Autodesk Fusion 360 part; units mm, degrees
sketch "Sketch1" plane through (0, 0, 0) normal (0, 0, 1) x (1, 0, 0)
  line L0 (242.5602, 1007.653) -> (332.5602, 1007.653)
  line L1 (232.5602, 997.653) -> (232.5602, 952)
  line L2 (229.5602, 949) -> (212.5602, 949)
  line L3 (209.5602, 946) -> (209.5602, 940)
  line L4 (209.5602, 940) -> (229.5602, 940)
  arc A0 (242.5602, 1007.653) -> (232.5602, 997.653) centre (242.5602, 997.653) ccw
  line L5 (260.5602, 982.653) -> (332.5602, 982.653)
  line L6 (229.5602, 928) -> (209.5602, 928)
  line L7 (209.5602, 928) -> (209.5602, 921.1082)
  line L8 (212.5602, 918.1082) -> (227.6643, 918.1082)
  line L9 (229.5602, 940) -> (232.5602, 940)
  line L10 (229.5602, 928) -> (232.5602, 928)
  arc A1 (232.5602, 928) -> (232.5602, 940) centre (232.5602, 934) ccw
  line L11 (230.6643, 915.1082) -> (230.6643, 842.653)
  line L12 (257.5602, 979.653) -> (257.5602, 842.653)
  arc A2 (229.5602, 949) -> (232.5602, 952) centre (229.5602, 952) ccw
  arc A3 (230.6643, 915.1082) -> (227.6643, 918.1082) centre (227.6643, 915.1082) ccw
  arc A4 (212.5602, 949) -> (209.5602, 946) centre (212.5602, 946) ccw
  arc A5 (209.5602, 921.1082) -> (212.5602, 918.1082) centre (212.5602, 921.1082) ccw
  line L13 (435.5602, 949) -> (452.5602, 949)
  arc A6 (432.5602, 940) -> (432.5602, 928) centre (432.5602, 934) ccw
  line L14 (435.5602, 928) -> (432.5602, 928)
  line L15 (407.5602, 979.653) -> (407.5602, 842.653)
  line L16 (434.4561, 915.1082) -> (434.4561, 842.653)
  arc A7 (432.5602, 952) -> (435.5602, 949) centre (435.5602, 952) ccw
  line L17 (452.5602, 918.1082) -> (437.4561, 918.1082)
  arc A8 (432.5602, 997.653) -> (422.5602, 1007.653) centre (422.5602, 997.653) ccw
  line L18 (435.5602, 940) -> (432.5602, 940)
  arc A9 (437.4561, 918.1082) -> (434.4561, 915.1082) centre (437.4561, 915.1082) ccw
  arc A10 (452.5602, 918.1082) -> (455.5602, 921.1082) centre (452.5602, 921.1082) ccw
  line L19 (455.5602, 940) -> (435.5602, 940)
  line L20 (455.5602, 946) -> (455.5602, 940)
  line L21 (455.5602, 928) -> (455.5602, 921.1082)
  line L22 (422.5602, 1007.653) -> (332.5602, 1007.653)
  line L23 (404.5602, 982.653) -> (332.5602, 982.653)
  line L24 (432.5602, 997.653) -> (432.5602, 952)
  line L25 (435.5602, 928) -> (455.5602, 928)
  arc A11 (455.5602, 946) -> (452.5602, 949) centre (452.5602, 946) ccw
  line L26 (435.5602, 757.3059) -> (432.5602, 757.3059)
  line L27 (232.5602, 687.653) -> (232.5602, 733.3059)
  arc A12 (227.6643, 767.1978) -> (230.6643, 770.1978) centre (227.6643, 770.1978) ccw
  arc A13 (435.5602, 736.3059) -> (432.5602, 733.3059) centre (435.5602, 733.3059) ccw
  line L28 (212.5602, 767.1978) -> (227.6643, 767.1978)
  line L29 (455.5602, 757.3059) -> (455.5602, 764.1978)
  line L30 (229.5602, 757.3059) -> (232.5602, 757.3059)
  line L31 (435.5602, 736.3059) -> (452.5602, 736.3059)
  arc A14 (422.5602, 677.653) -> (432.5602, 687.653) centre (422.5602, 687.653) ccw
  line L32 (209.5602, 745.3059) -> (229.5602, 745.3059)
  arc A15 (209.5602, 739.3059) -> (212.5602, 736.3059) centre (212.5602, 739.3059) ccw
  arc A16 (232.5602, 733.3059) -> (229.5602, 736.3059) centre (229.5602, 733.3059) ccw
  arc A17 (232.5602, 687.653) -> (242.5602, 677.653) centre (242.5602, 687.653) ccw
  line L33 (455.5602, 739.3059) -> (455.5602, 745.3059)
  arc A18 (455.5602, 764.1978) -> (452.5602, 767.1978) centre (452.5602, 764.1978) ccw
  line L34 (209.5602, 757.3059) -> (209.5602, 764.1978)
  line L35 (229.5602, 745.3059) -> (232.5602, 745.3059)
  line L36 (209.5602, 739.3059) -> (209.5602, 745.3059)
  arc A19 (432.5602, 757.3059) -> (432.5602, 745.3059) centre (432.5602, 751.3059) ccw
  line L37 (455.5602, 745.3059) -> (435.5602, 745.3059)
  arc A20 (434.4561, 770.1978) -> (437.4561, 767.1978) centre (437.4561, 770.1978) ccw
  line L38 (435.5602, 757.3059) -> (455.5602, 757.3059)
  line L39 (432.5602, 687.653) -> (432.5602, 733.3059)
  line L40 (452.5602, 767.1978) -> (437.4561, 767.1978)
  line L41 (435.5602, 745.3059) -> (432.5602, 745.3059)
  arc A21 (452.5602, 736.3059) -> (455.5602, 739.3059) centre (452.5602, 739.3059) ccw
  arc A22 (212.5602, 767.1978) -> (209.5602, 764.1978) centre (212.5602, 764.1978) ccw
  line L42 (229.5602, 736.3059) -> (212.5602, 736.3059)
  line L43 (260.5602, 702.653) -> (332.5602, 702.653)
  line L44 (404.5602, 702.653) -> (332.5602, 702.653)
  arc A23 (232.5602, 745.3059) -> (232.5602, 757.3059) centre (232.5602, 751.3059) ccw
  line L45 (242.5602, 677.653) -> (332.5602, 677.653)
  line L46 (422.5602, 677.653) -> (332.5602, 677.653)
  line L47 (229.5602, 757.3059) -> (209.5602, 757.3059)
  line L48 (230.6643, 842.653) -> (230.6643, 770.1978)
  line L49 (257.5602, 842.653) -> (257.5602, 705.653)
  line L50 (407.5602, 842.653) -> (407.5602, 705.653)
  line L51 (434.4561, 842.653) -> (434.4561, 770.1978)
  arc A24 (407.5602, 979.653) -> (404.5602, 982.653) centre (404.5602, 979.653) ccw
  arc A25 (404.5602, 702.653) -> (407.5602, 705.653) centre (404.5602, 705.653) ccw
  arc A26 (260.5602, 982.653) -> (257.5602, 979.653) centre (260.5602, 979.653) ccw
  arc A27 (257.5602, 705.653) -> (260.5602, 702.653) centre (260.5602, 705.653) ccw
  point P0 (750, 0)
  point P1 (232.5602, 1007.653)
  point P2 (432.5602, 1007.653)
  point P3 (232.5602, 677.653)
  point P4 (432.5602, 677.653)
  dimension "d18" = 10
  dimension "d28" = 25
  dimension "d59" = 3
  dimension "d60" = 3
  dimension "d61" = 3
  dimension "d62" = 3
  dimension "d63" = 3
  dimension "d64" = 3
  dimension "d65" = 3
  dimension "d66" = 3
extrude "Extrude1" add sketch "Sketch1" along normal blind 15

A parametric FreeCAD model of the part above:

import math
import FreeCAD as App
import Part
import Sketcher

doc = App.newDocument("Part")
body = doc.addObject("PartDesign::Body", "Body")

sketch1 = body.newObject("Sketcher::SketchObject", "Sketch")
sketch1.AttachmentSupport = (doc.getObject("XY_Plane"), [""])
sketch1.MapMode = "FlatFace"
sketch1.addGeometry(Part.LineSegment(App.Vector(422.6, 1007.7, 0), App.Vector(242.6, 1007.7, 0)), False)
sketch1.addGeometry(Part.ArcOfCircle(Part.Circle(App.Vector(242.6, 997.7, 0), App.Vector(0, 0, 1), 10), math.radians(90), math.radians(180)), False)
sketch1.addGeometry(Part.LineSegment(App.Vector(232.6, 997.7, 0), App.Vector(232.6, 952, 0)), False)
sketch1.addGeometry(Part.ArcOfCircle(Part.Circle(App.Vector(229.6, 952, 0), App.Vector(0, 0, 1), 3), math.radians(-90), math.radians(0)), False)
sketch1.addGeometry(Part.LineSegment(App.Vector(229.6, 949, 0), App.Vector(212.6, 949, 0)), False)
sketch1.addGeometry(Part.ArcOfCircle(Part.Circle(App.Vector(212.6, 946, 0), App.Vector(0, 0, 1), 3), math.radians(90), math.radians(180)), False)
sketch1.addGeometry(Part.LineSegment(App.Vector(209.6, 946, 0), App.Vector(209.6, 940, 0)), False)
sketch1.addGeometry(Part.LineSegment(App.Vector(209.6, 940, 0), App.Vector(232.6, 940, 0)), False)
sketch1.addGeometry(Part.ArcOfCircle(Part.Circle(App.Vector(232.6, 934, 0), App.Vector(0, 0, 1), 6), math.radians(-90), math.radians(90)), False)
sketch1.addGeometry(Part.LineSegment(App.Vector(232.6, 928, 0), App.Vector(209.6, 928, 0)), False)
sketch1.addGeometry(Part.LineSegment(App.Vector(209.6, 928, 0), App.Vector(209.6, 921.1, 0)), False)
sketch1.addGeometry(Part.ArcOfCircle(Part.Circle(App.Vector(212.6, 921.1, 0), App.Vector(0, 0, 1), 3), math.radians(180), math.radians(270)), False)
sketch1.addGeometry(Part.LineSegment(App.Vector(212.6, 918.1, 0), App.Vector(227.7, 918.1, 0)), False)
sketch1.addGeometry(Part.ArcOfCircle(Part.Circle(App.Vector(227.7, 915.1, 0), App.Vector(0, 0, 1), 3), math.radians(0), math.radians(90)), False)
sketch1.addGeometry(Part.LineSegment(App.Vector(230.7, 915.1, 0), App.Vector(230.7, 770.2, 0)), False)
sketch1.addGeometry(Part.ArcOfCircle(Part.Circle(App.Vector(227.7, 770.2, 0), App.Vector(0, 0, 1), 3), math.radians(-90), math.radians(0)), False)
sketch1.addGeometry(Part.LineSegment(App.Vector(227.7, 767.2, 0), App.Vector(212.6, 767.2, 0)), False)
sketch1.addGeometry(Part.ArcOfCircle(Part.Circle(App.Vector(212.6, 764.2, 0), App.Vector(0, 0, 1), 3), math.radians(90), math.radians(180)), False)
sketch1.addGeometry(Part.LineSegment(App.Vector(209.6, 764.2, 0), App.Vector(209.6, 757.3, 0)), False)
sketch1.addGeometry(Part.LineSegment(App.Vector(209.6, 757.3, 0), App.Vector(232.6, 757.3, 0)), False)
sketch1.addGeometry(Part.ArcOfCircle(Part.Circle(App.Vector(232.6, 751.3, 0), App.Vector(0, 0, 1), 6), math.radians(-90), math.radians(90)), False)
sketch1.addGeometry(Part.LineSegment(App.Vector(232.6, 745.3, 0), App.Vector(209.6, 745.3, 0)), False)
sketch1.addGeometry(Part.LineSegment(App.Vector(209.6, 745.3, 0), App.Vector(209.6, 739.3, 0)), False)
sketch1.addGeometry(Part.ArcOfCircle(Part.Circle(App.Vector(212.6, 739.3, 0), App.Vector(0, 0, 1), 3), math.radians(180), math.radians(270)), False)
sketch1.addGeometry(Part.LineSegment(App.Vector(212.6, 736.3, 0), App.Vector(229.6, 736.3, 0)), False)
sketch1.addGeometry(Part.ArcOfCircle(Part.Circle(App.Vector(229.6, 733.3, 0), App.Vector(0, 0, 1), 3), math.radians(0), math.radians(90)), False)
sketch1.addGeometry(Part.LineSegment(App.Vector(232.6, 733.3, 0), App.Vector(232.6, 687.7, 0)), False)
sketch1.addGeometry(Part.ArcOfCircle(Part.Circle(App.Vector(242.6, 687.7, 0), App.Vector(0, 0, 1), 10), math.radians(180), math.radians(270)), False)
sketch1.addGeometry(Part.LineSegment(App.Vector(242.6, 677.7, 0), App.Vector(422.6, 677.7, 0)), False)
sketch1.addGeometry(Part.ArcOfCircle(Part.Circle(App.Vector(422.6, 687.7, 0), App.Vector(0, 0, 1), 10), math.radians(-90), math.radians(0)), False)
sketch1.addGeometry(Part.LineSegment(App.Vector(432.6, 687.7, 0), App.Vector(432.6, 733.3, 0)), False)
sketch1.addGeometry(Part.ArcOfCircle(Part.Circle(App.Vector(435.6, 733.3, 0), App.Vector(0, 0, 1), 3), math.radians(90), math.radians(180)), False)
sketch1.addGeometry(Part.LineSegment(App.Vector(435.6, 736.3, 0), App.Vector(452.6, 736.3, 0)), False)
sketch1.addGeometry(Part.ArcOfCircle(Part.Circle(App.Vector(452.6, 739.3, 0), App.Vector(0, 0, 1), 3), math.radians(-90), math.radians(0)), False)
sketch1.addGeometry(Part.LineSegment(App.Vector(455.6, 739.3, 0), App.Vector(455.6, 745.3, 0)), False)
sketch1.addGeometry(Part.LineSegment(App.Vector(455.6, 745.3, 0), App.Vector(432.6, 745.3, 0)), False)
sketch1.addGeometry(Part.ArcOfCircle(Part.Circle(App.Vector(432.6, 751.3, 0), App.Vector(0, 0, 1), 6), math.radians(90), math.radians(270)), False)
sketch1.addGeometry(Part.LineSegment(App.Vector(432.6, 757.3, 0), App.Vector(455.6, 757.3, 0)), False)
sketch1.addGeometry(Part.LineSegment(App.Vector(455.6, 757.3, 0), App.Vector(455.6, 764.2, 0)), False)
sketch1.addGeometry(Part.ArcOfCircle(Part.Circle(App.Vector(452.6, 764.2, 0), App.Vector(0, 0, 1), 3), math.radians(0), math.radians(90)), False)
sketch1.addGeometry(Part.LineSegment(App.Vector(452.6, 767.2, 0), App.Vector(437.5, 767.2, 0)), False)
sketch1.addGeometry(Part.ArcOfCircle(Part.Circle(App.Vector(437.5, 770.2, 0), App.Vector(0, 0, 1), 3), math.radians(180), math.radians(270)), False)
sketch1.addGeometry(Part.LineSegment(App.Vector(434.5, 770.2, 0), App.Vector(434.5, 915.1, 0)), False)
sketch1.addGeometry(Part.ArcOfCircle(Part.Circle(App.Vector(437.5, 915.1, 0), App.Vector(0, 0, 1), 3), math.radians(90), math.radians(180)), False)
sketch1.addGeometry(Part.LineSegment(App.Vector(437.5, 918.1, 0), App.Vector(452.6, 918.1, 0)), False)
sketch1.addGeometry(Part.ArcOfCircle(Part.Circle(App.Vector(452.6, 921.1, 0), App.Vector(0, 0, 1), 3), math.radians(-90), math.radians(0)), False)
sketch1.addGeometry(Part.LineSegment(App.Vector(455.6, 921.1, 0), App.Vector(455.6, 928, 0)), False)
sketch1.addGeometry(Part.LineSegment(App.Vector(455.6, 928, 0), App.Vector(432.6, 928, 0)), False)
sketch1.addGeometry(Part.ArcOfCircle(Part.Circle(App.Vector(432.6, 934, 0), App.Vector(0, 0, 1), 6), math.radians(90), math.radians(270)), False)
sketch1.addGeometry(Part.LineSegment(App.Vector(432.6, 940, 0), App.Vector(455.6, 940, 0)), False)
sketch1.addGeometry(Part.LineSegment(App.Vector(455.6, 940, 0), App.Vector(455.6, 946, 0)), False)
sketch1.addGeometry(Part.ArcOfCircle(Part.Circle(App.Vector(452.6, 946, 0), App.Vector(0, 0, 1), 3), math.radians(0), math.radians(90)), False)
sketch1.addGeometry(Part.LineSegment(App.Vector(452.6, 949, 0), App.Vector(435.6, 949, 0)), False)
sketch1.addGeometry(Part.ArcOfCircle(Part.Circle(App.Vector(435.6, 952, 0), App.Vector(0, 0, 1), 3), math.radians(180), math.radians(270)), False)
sketch1.addGeometry(Part.LineSegment(App.Vector(432.6, 952, 0), App.Vector(432.6, 997.7, 0)), False)
sketch1.addGeometry(Part.ArcOfCircle(Part.Circle(App.Vector(422.6, 997.7, 0), App.Vector(0, 0, 1), 10), math.radians(0), math.radians(90)), False)
sketch1.addGeometry(Part.ArcOfCircle(Part.Circle(App.Vector(260.6, 979.7, 0), App.Vector(0, 0, 1), 3), math.radians(90), math.radians(180)), False)
sketch1.addGeometry(Part.LineSegment(App.Vector(260.6, 982.7, 0), App.Vector(404.6, 982.7, 0)), False)
sketch1.addGeometry(Part.ArcOfCircle(Part.Circle(App.Vector(404.6, 979.7, 0), App.Vector(0, 0, 1), 3), math.radians(0), math.radians(90)), False)
sketch1.addGeometry(Part.LineSegment(App.Vector(407.6, 979.7, 0), App.Vector(407.6, 705.7, 0)), False)
sketch1.addGeometry(Part.ArcOfCircle(Part.Circle(App.Vector(404.6, 705.7, 0), App.Vector(0, 0, 1), 3), math.radians(-90), math.radians(0)), False)
sketch1.addGeometry(Part.LineSegment(App.Vector(404.6, 702.7, 0), App.Vector(260.6, 702.7, 0)), False)
sketch1.addGeometry(Part.ArcOfCircle(Part.Circle(App.Vector(260.6, 705.7, 0), App.Vector(0, 0, 1), 3), math.radians(180), math.radians(270)), False)
sketch1.addGeometry(Part.LineSegment(App.Vector(257.6, 705.7, 0), App.Vector(257.6, 979.7, 0)), False)
sketch1.addConstraint(Sketcher.Constraint("Tangent", 0, 2, 1, 1))
sketch1.addConstraint(Sketcher.Constraint("Tangent", 1, 2, 2, 1))
sketch1.addConstraint(Sketcher.Constraint("Tangent", 2, 2, 3, 2))
sketch1.addConstraint(Sketcher.Constraint("Tangent", 3, 1, 4, 1))
sketch1.addConstraint(Sketcher.Constraint("Tangent", 4, 2, 5, 1))
sketch1.addConstraint(Sketcher.Constraint("Tangent", 5, 2, 6, 1))
sketch1.addConstraint(Sketcher.Constraint("Coincident", 6, 2, 7, 1))
sketch1.addConstraint(Sketcher.Constraint("Tangent", 7, 2, 8, 2))
sketch1.addConstraint(Sketcher.Constraint("Tangent", 8, 1, 9, 1))
sketch1.addConstraint(Sketcher.Constraint("Coincident", 9, 2, 10, 1))
sketch1.addConstraint(Sketcher.Constraint("Tangent", 10, 2, 11, 1))
sketch1.addConstraint(Sketcher.Constraint("Tangent", 11, 2, 12, 1))
sketch1.addConstraint(Sketcher.Constraint("Tangent", 12, 2, 13, 2))
sketch1.addConstraint(Sketcher.Constraint("Tangent", 13, 1, 14, 1))
sketch1.addConstraint(Sketcher.Constraint("Tangent", 14, 2, 15, 2))
sketch1.addConstraint(Sketcher.Constraint("Tangent", 15, 1, 16, 1))
sketch1.addConstraint(Sketcher.Constraint("Tangent", 16, 2, 17, 1))
sketch1.addConstraint(Sketcher.Constraint("Tangent", 17, 2, 18, 1))
sketch1.addConstraint(Sketcher.Constraint("Coincident", 18, 2, 19, 1))
sketch1.addConstraint(Sketcher.Constraint("Tangent", 19, 2, 20, 2))
sketch1.addConstraint(Sketcher.Constraint("Tangent", 20, 1, 21, 1))
sketch1.addConstraint(Sketcher.Constraint("Coincident", 21, 2, 22, 1))
sketch1.addConstraint(Sketcher.Constraint("Tangent", 22, 2, 23, 1))
sketch1.addConstraint(Sketcher.Constraint("Tangent", 23, 2, 24, 1))
sketch1.addConstraint(Sketcher.Constraint("Tangent", 24, 2, 25, 2))
sketch1.addConstraint(Sketcher.Constraint("Tangent", 25, 1, 26, 1))
sketch1.addConstraint(Sketcher.Constraint("Tangent", 26, 2, 27, 1))
sketch1.addConstraint(Sketcher.Constraint("Tangent", 27, 2, 28, 1))
sketch1.addConstraint(Sketcher.Constraint("Tangent", 28, 2, 29, 1))
sketch1.addConstraint(Sketcher.Constraint("Tangent", 29, 2, 30, 1))
sketch1.addConstraint(Sketcher.Constraint("Tangent", 30, 2, 31, 2))
sketch1.addConstraint(Sketcher.Constraint("Tangent", 31, 1, 32, 1))
sketch1.addConstraint(Sketcher.Constraint("Tangent", 32, 2, 33, 1))
sketch1.addConstraint(Sketcher.Constraint("Tangent", 33, 2, 34, 1))
sketch1.addConstraint(Sketcher.Constraint("Coincident", 34, 2, 35, 1))
sketch1.addConstraint(Sketcher.Constraint("Tangent", 35, 2, 36, 2))
sketch1.addConstraint(Sketcher.Constraint("Tangent", 36, 1, 37, 1))
sketch1.addConstraint(Sketcher.Constraint("Coincident", 37, 2, 38, 1))
sketch1.addConstraint(Sketcher.Constraint("Tangent", 38, 2, 39, 1))
sketch1.addConstraint(Sketcher.Constraint("Tangent", 39, 2, 40, 1))
sketch1.addConstraint(Sketcher.Constraint("Tangent", 40, 2, 41, 2))
sketch1.addConstraint(Sketcher.Constraint("Tangent", 41, 1, 42, 1))
sketch1.addConstraint(Sketcher.Constraint("Tangent", 42, 2, 43, 2))
sketch1.addConstraint(Sketcher.Constraint("Tangent", 43, 1, 44, 1))
sketch1.addConstraint(Sketcher.Constraint("Tangent", 44, 2, 45, 1))
sketch1.addConstraint(Sketcher.Constraint("Tangent", 45, 2, 46, 1))
sketch1.addConstraint(Sketcher.Constraint("Coincident", 46, 2, 47, 1))
sketch1.addConstraint(Sketcher.Constraint("Tangent", 47, 2, 48, 2))
sketch1.addConstraint(Sketcher.Constraint("Tangent", 48, 1, 49, 1))
sketch1.addConstraint(Sketcher.Constraint("Coincident", 49, 2, 50, 1))
sketch1.addConstraint(Sketcher.Constraint("Tangent", 50, 2, 51, 1))
sketch1.addConstraint(Sketcher.Constraint("Tangent", 51, 2, 52, 1))
sketch1.addConstraint(Sketcher.Constraint("Tangent", 52, 2, 53, 2))
sketch1.addConstraint(Sketcher.Constraint("Tangent", 53, 1, 54, 1))
sketch1.addConstraint(Sketcher.Constraint("Tangent", 54, 2, 55, 1))
sketch1.addConstraint(Sketcher.Constraint("Tangent", 55, 2, 0, 1))
sketch1.addConstraint(Sketcher.Constraint("Tangent", 56, 1, 57, 1))
sketch1.addConstraint(Sketcher.Constraint("Tangent", 57, 2, 58, 2))
sketch1.addConstraint(Sketcher.Constraint("Tangent", 58, 1, 59, 1))
sketch1.addConstraint(Sketcher.Constraint("Tangent", 59, 2, 60, 2))
sketch1.addConstraint(Sketcher.Constraint("Tangent", 60, 1, 61, 1))
sketch1.addConstraint(Sketcher.Constraint("Tangent", 61, 2, 62, 2))
sketch1.addConstraint(Sketcher.Constraint("Tangent", 62, 1, 63, 1))
sketch1.addConstraint(Sketcher.Constraint("Tangent", 63, 2, 56, 2))
sketch1.addConstraint(Sketcher.Constraint("Horizontal", 0))
sketch1.addConstraint(Sketcher.Constraint("Vertical", 2))
sketch1.addConstraint(Sketcher.Constraint("Horizontal", 4))
sketch1.addConstraint(Sketcher.Constraint("Vertical", 6))
sketch1.addConstraint(Sketcher.Constraint("Horizontal", 7))
sketch1.addConstraint(Sketcher.Constraint("Horizontal", 9))
sketch1.addConstraint(Sketcher.Constraint("Vertical", 10))
sketch1.addConstraint(Sketcher.Constraint("Horizontal", 12))
sketch1.addConstraint(Sketcher.Constraint("Vertical", 14))
sketch1.addConstraint(Sketcher.Constraint("Horizontal", 16))
sketch1.addConstraint(Sketcher.Constraint("Vertical", 18))
sketch1.addConstraint(Sketcher.Constraint("Horizontal", 19))
sketch1.addConstraint(Sketcher.Constraint("Horizontal", 21))
sketch1.addConstraint(Sketcher.Constraint("Vertical", 22))
sketch1.addConstraint(Sketcher.Constraint("Horizontal", 24))
sketch1.addConstraint(Sketcher.Constraint("Vertical", 26))
sketch1.addConstraint(Sketcher.Constraint("Horizontal", 28))
sketch1.addConstraint(Sketcher.Constraint("Vertical", 30))
sketch1.addConstraint(Sketcher.Constraint("Horizontal", 32))
sketch1.addConstraint(Sketcher.Constraint("Vertical", 34))
sketch1.addConstraint(Sketcher.Constraint("Horizontal", 35))
sketch1.addConstraint(Sketcher.Constraint("Horizontal", 37))
sketch1.addConstraint(Sketcher.Constraint("Vertical", 38))
sketch1.addConstraint(Sketcher.Constraint("Horizontal", 40))
sketch1.addConstraint(Sketcher.Constraint("Vertical", 42))
sketch1.addConstraint(Sketcher.Constraint("Horizontal", 44))
sketch1.addConstraint(Sketcher.Constraint("Vertical", 46))
sketch1.addConstraint(Sketcher.Constraint("Horizontal", 47))
sketch1.addConstraint(Sketcher.Constraint("Horizontal", 49))
sketch1.addConstraint(Sketcher.Constraint("Vertical", 50))
sketch1.addConstraint(Sketcher.Constraint("Horizontal", 52))
sketch1.addConstraint(Sketcher.Constraint("Vertical", 54))
sketch1.addConstraint(Sketcher.Constraint("Horizontal", 57))
sketch1.addConstraint(Sketcher.Constraint("Vertical", 59))
sketch1.addConstraint(Sketcher.Constraint("Horizontal", 61))
sketch1.addConstraint(Sketcher.Constraint("Vertical", 63))
sketch1.addConstraint(Sketcher.Constraint("Equal", 3, 5))
sketch1.addConstraint(Sketcher.Constraint("Equal", 5, 11))
sketch1.addConstraint(Sketcher.Constraint("Equal", 11, 13))
sketch1.addConstraint(Sketcher.Constraint("Equal", 13, 15))
sketch1.addConstraint(Sketcher.Constraint("Equal", 15, 17))
sketch1.addConstraint(Sketcher.Constraint("Equal", 8, 20))
sketch1.addConstraint(Sketcher.Constraint("Equal", 17, 23))
sketch1.addConstraint(Sketcher.Constraint("Equal", 23, 25))
sketch1.addConstraint(Sketcher.Constraint("Equal", 1, 27))
sketch1.addConstraint(Sketcher.Constraint("Equal", 27, 29))
sketch1.addConstraint(Sketcher.Constraint("Equal", 25, 31))
sketch1.addConstraint(Sketcher.Constraint("Equal", 31, 33))
sketch1.addConstraint(Sketcher.Constraint("Equal", 20, 36))
sketch1.addConstraint(Sketcher.Constraint("Equal", 33, 39))
sketch1.addConstraint(Sketcher.Constraint("Equal", 39, 41))
sketch1.addConstraint(Sketcher.Constraint("Equal", 41, 43))
sketch1.addConstraint(Sketcher.Constraint("Equal", 43, 45))
sketch1.addConstraint(Sketcher.Constraint("Equal", 36, 48))
sketch1.addConstraint(Sketcher.Constraint("Equal", 45, 51))
sketch1.addConstraint(Sketcher.Constraint("Equal", 51, 53))
sketch1.addConstraint(Sketcher.Constraint("Equal", 29, 55))
sketch1.addConstraint(Sketcher.Constraint("Equal", 53, 56))
sketch1.addConstraint(Sketcher.Constraint("Equal", 56, 58))
sketch1.addConstraint(Sketcher.Constraint("Equal", 58, 60))
sketch1.addConstraint(Sketcher.Constraint("Equal", 60, 62))
sketch1.addConstraint(Sketcher.Constraint("Horizontal", 25, 3, 31, 3))
sketch1.addConstraint(Sketcher.Constraint("Horizontal", 20, 3, 36, 3))
sketch1.addConstraint(Sketcher.Constraint("Horizontal", 17, 3, 39, 3))
sketch1.addConstraint(Sketcher.Constraint("Horizontal", 13, 3, 43, 3))
sketch1.addConstraint(Sketcher.Constraint("Horizontal", 8, 3, 48, 3))
sketch1.addConstraint(Sketcher.Constraint("Horizontal", 5, 3, 51, 3))
sketch1.addConstraint(Sketcher.Constraint("Vertical", 5, 3, 11, 3))
sketch1.addConstraint(Sketcher.Constraint("Vertical", 11, 3, 17, 3))
sketch1.addConstraint(Sketcher.Constraint("Vertical", 8, 3, 20, 3))
sketch1.addConstraint(Sketcher.Constraint("Vertical", 17, 3, 23, 3))
sketch1.addConstraint(Sketcher.Constraint("Vertical", 3, 3, 25, 3))
sketch1.addConstraint(Sketcher.Constraint("Vertical", 33, 3, 39, 3))
sketch1.addConstraint(Sketcher.Constraint("Vertical", 39, 3, 45, 3))
sketch1.addConstraint(Sketcher.Constraint("Vertical", 36, 3, 48, 3))
sketch1.addConstraint(Sketcher.Constraint("Vertical", 45, 3, 51, 3))
sketch1.addConstraint(Sketcher.Constraint("Vertical", 31, 3, 53, 3))
sketch1.addConstraint(Sketcher.Constraint("Vertical", 20, 3, 1, 2))
sketch1.addConstraint(Sketcher.Constraint("Vertical", 48, 3, 29, 2))
sketch1.addConstraint(Sketcher.Constraint("Equal", 24, 32))
sketch1.addConstraint(Sketcher.Constraint("Equal", 16, 40))
sketch1.addConstraint(Sketcher.Constraint("Equal", 10, 18))
sketch1.addConstraint(Sketcher.Constraint("Equal", 6, 22))
sketch1.addConstraint(Sketcher.Constraint("Equal", 2, 26))
sketch1.addConstraint(Sketcher.Constraint("Radius", 1, 10.0))
sketch1.addConstraint(Sketcher.Constraint("Radius", 3, 3.0))
sketch1.addConstraint(Sketcher.Constraint("Radius", 8, 6.0))
sketch1.addConstraint(Sketcher.Constraint("DistanceX", 0, 2, 0, 1, 180.0))
sketch1.addConstraint(Sketcher.Constraint("DistanceX", 4, 2, 4, 1, 17.0))
sketch1.addConstraint(Sketcher.Constraint("DistanceX", 57, 1, 57, 2, 144.0))
sketch1.addConstraint(Sketcher.Constraint("DistanceY", 6, 2, 6, 1, 6.0))
sketch1.addConstraint(Sketcher.Constraint("DistanceY", 59, 2, 59, 1, 274.0))
sketch1.addConstraint(Sketcher.Constraint("DistanceY", -1, 1, 3, 3, 952.0))
sketch1.addConstraint(Sketcher.Constraint("DistanceX", 12, 1, 12, 2, 15.104))
sketch1.addConstraint(Sketcher.Constraint("DistanceY", 2, 2, 2, 1, 45.653))
sketch1.addConstraint(Sketcher.Constraint("DistanceY", 18, 2, 18, 1, 6.892))
sketch1.addConstraint(Sketcher.Constraint("DistanceY", 14, 2, 14, 1, 144.9104))
sketch1.addConstraint(Sketcher.Constraint("DistanceX", -1, 1, 41, 3, 437.456))
sketch1.addConstraint(Sketcher.Constraint("DistanceY", -1, 1, 56, 3, 979.653))
sketch1.addConstraint(Sketcher.Constraint("DistanceX", -1, 1, 56, 3, 260.5602))
pad1 = body.newObject("PartDesign::Pad", "Pad")
pad1.Profile = sketch1
pad1.Length = 15

doc.recompute()
